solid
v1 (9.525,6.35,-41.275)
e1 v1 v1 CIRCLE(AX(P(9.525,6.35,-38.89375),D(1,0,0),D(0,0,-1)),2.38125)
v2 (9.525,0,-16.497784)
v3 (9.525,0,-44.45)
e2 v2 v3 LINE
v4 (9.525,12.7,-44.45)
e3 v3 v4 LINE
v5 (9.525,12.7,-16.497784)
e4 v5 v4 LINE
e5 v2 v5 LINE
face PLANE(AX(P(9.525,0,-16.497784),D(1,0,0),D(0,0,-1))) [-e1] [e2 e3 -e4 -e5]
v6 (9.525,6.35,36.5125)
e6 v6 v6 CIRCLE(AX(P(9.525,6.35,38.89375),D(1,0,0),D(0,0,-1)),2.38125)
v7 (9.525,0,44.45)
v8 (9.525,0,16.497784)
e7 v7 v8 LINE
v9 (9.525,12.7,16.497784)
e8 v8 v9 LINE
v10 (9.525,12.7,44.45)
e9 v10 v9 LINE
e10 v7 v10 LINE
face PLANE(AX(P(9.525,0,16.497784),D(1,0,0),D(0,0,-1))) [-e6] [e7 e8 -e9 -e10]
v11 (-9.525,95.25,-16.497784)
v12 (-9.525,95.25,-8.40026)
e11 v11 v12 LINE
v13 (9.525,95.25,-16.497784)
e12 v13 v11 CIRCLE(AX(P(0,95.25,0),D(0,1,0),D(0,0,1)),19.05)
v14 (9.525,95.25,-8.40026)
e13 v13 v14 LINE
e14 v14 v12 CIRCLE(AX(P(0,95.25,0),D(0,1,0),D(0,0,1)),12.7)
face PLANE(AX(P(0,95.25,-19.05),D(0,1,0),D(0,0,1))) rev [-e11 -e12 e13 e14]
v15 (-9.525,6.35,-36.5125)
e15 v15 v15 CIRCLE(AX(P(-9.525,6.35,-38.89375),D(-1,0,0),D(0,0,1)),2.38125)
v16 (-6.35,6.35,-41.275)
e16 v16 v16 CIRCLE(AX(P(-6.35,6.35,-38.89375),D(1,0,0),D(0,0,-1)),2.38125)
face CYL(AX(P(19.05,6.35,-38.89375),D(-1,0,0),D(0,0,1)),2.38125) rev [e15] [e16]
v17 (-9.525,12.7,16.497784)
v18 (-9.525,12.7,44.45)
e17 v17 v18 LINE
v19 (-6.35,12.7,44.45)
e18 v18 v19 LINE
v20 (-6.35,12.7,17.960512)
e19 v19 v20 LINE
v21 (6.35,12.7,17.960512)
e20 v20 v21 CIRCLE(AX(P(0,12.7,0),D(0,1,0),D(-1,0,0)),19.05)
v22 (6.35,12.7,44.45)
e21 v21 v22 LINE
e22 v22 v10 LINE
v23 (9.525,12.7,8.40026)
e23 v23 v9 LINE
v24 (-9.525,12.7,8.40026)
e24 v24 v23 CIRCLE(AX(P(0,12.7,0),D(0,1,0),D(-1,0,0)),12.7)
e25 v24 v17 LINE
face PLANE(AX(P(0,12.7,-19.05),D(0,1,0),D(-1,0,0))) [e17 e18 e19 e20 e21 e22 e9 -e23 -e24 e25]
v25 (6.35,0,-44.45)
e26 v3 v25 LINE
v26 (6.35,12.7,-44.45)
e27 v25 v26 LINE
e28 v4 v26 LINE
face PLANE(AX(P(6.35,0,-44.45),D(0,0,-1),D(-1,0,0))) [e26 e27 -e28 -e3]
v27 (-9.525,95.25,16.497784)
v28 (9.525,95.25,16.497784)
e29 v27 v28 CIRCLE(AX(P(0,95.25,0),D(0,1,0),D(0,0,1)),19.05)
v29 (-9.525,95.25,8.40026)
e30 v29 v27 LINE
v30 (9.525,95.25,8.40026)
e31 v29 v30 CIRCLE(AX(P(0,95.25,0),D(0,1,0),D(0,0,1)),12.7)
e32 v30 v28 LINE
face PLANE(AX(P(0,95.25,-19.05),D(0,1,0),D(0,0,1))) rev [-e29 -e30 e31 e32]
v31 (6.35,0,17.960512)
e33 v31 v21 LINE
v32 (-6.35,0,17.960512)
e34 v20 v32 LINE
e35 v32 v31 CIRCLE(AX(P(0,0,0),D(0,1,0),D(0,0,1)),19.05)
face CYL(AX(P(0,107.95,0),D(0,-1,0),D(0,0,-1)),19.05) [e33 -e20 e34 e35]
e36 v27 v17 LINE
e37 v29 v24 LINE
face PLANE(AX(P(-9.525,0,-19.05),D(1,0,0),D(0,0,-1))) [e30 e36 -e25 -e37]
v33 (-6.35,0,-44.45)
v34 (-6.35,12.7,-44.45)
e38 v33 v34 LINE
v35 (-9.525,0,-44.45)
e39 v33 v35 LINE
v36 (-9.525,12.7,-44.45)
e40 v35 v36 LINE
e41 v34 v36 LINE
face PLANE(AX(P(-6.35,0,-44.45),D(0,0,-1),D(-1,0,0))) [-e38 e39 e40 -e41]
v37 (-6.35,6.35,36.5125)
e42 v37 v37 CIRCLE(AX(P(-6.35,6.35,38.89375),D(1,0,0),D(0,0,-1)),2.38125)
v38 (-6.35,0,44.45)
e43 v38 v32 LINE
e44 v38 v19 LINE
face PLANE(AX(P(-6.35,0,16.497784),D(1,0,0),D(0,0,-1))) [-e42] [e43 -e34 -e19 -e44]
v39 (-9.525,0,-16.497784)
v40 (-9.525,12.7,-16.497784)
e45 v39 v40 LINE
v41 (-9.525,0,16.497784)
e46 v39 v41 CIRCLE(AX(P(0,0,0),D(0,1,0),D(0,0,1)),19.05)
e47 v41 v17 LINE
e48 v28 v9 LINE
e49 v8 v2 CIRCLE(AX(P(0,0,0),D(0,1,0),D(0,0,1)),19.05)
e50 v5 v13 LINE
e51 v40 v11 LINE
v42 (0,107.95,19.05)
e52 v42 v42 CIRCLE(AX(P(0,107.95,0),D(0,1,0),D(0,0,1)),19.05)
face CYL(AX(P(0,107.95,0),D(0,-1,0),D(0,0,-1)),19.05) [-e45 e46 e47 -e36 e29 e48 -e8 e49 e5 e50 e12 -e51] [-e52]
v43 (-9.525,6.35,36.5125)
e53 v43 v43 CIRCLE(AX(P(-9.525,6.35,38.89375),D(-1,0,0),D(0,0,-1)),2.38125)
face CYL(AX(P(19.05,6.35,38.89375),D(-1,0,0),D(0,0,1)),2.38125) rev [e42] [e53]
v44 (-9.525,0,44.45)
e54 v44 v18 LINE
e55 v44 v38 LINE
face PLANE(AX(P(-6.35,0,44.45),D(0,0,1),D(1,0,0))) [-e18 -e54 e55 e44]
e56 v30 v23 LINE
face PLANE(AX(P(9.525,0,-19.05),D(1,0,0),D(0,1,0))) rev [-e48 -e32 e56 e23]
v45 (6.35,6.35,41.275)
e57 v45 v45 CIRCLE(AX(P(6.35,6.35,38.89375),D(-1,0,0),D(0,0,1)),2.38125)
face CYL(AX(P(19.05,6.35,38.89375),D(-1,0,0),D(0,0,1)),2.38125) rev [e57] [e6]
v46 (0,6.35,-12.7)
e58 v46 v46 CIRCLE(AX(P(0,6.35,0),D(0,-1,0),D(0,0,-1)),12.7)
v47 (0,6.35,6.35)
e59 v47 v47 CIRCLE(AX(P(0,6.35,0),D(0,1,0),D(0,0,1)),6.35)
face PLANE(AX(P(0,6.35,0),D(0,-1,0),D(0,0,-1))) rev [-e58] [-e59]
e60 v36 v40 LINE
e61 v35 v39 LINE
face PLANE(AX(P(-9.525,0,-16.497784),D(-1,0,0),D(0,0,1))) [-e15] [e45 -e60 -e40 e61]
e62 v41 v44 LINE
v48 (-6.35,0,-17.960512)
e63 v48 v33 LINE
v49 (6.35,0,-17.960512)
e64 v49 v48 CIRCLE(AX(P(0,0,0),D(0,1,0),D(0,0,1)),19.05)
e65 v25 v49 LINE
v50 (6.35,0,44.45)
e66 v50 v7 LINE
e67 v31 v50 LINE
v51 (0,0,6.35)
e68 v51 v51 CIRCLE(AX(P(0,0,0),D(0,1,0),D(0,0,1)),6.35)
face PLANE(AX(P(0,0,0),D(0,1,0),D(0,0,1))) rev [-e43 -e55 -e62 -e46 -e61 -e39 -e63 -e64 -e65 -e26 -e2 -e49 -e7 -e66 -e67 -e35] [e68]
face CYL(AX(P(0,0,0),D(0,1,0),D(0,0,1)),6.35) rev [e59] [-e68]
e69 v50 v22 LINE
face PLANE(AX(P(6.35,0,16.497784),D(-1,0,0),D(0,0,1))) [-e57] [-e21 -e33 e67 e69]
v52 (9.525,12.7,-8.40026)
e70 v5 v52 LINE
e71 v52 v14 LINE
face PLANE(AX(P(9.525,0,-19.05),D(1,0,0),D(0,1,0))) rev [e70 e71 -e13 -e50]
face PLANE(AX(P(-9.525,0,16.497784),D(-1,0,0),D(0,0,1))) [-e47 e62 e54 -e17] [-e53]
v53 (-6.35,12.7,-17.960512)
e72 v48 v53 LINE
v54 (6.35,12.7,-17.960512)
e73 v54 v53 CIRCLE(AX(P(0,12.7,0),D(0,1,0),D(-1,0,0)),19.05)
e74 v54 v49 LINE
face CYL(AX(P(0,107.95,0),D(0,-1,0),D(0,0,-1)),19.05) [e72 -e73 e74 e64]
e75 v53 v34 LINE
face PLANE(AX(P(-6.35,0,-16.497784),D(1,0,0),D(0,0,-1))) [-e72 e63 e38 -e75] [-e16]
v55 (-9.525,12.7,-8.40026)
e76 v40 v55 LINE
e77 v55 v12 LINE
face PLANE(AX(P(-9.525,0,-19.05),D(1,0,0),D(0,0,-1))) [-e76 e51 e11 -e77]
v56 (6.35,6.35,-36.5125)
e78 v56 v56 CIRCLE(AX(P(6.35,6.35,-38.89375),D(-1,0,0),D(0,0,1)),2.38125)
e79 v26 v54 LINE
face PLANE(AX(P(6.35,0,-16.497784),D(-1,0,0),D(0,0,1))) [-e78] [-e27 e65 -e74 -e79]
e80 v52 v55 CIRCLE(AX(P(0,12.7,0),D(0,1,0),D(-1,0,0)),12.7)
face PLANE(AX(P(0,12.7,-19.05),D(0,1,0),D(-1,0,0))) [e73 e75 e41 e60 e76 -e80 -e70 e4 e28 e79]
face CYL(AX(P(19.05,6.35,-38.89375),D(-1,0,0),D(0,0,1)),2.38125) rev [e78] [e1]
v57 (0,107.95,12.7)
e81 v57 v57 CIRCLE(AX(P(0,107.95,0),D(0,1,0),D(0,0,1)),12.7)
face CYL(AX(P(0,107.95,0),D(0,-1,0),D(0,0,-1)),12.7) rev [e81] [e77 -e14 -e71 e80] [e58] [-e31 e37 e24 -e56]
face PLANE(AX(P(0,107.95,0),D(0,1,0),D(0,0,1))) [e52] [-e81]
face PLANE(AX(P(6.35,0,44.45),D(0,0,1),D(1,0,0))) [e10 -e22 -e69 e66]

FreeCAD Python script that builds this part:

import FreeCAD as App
import Part
import Sketcher
Q = App.Units.Quantity


def add_polygon(sketch, points):
    """Adds a closed chain of lines whose ends are joined by coincident constraints."""
    first, n = sketch.GeometryCount, len(points)
    for a, b in zip(points, points[1:] + points[:1]):
        sketch.addGeometry(Part.LineSegment(App.Vector(*a, 0), App.Vector(*b, 0)), False)
    for i in range(n):
        sketch.addConstraint(Sketcher.Constraint("Coincident", first + i, 2, first + (i + 1) % n, 1))

doc = App.newDocument("Part")
params = doc.addObject("Spreadsheet::Sheet", "Params")
for row, (alias, value) in enumerate([
    ("sketch1_diameter", "1 in"),
    ("sketch1_diameter2", "1.5 in"),
    ("pad1_length", "4.25 in"),
    ("sketch2_diameter", "1.1 in"),
    ("pad2_length", "0.25 in"),
    ("sketch3_width", "0.75 in"),
    ("sketch3_height", "3.25 in"),
    ("sketch4_diameter", "0.5 in"),
    ("sketch5_width", "0.125 in"),
    ("pad3_length", "0.25 in"),
    ("pad3_length2", "0.25 in"),
    ("sketch6_diameter", "0.1875 in"),
], start=1):
    params.set(f"A{row}", alias)
    params.set(f"B{row}", "=" + value)
    params.setAlias(f"B{row}", alias)

body = doc.addObject("PartDesign::Body", "Body")

# Sketch on XZ plane
sketch1 = doc.addObject("Sketcher::SketchObject", "Sketch")
body.addObject(sketch1)
sketch1.AttachmentSupport = (doc.XZ_Plane, [""])
sketch1.MapMode = "FlatFace"
sketch1.addGeometry(Part.Circle(App.Vector(0, 0, 0), App.Vector(0, 0, 1), 19), False)
sketch1.addGeometry(Part.Circle(App.Vector(0, 0, 0), App.Vector(0, 0, 1), 13), False)
sketch1.addConstraint(Sketcher.Constraint("Coincident", 0, 3, -1, 1))
sketch1.addConstraint(Sketcher.Constraint("Coincident", 1, 3, -1, 1))
sketch1.addConstraint(Sketcher.Constraint("Diameter", 1, Q("1 in")))
sketch1.addConstraint(Sketcher.Constraint("Diameter", 0, Q("1.5 in")))
sketch1.setExpression("Constraints[2]", "Params.sketch1_diameter")
sketch1.setExpression("Constraints[3]", "Params.sketch1_diameter2")
pad1 = doc.addObject("PartDesign::Pad", "Pad")
body.addObject(pad1)
pad1.Profile = sketch1
pad1.setExpression("Length", "Params.pad1_length")
pad1.Reversed = True

# Sketch on XZ plane
sketch2 = doc.addObject("Sketcher::SketchObject", "Sketch001")
body.addObject(sketch2)
sketch2.AttachmentSupport = (doc.XZ_Plane, [""])
sketch2.MapMode = "FlatFace"
sketch2.addGeometry(Part.Circle(App.Vector(0, 0, 0), App.Vector(0, 0, 1), 14), False)
sketch2.addConstraint(Sketcher.Constraint("Coincident", 0, 3, -1, 1))
sketch2.addConstraint(Sketcher.Constraint("Diameter", 0, Q("1.1 in")))
sketch2.setExpression("Constraints[1]", "Params.sketch2_diameter")
pad2 = doc.addObject("PartDesign::Pad", "Pad001")
body.addObject(pad2)
pad2.Profile = sketch2
pad2.setExpression("Length", "Params.pad2_length")
pad2.Reversed = True

# Sketch on XY plane
sketch3 = doc.addObject("Sketcher::SketchObject", "Sketch002")
body.addObject(sketch3)
sketch3.AttachmentSupport = (doc.XY_Plane, [""])
sketch3.MapMode = "FlatFace"
add_polygon(sketch3, [(-10, 95), (-10, 13), (10, 13), (10, 95)])  # lines 0-3
sketch3.addConstraint(Sketcher.Constraint("Vertical", 0))
sketch3.addConstraint(Sketcher.Constraint("Horizontal", 1))
sketch3.addConstraint(Sketcher.Constraint("Vertical", 2))
sketch3.addConstraint(Sketcher.Constraint("Horizontal", 3))
sketch3.addConstraint(Sketcher.Constraint("DistanceX", 1, 1, 1, 2, Q("0.75 in")))
sketch3.addConstraint(Sketcher.Constraint("DistanceY", 0, 2, 0, 1, Q("3.25 in")))
sketch3.addConstraint(Sketcher.Constraint("DistanceY", -1, 1, 0, 2, Q("0.5 in")))
sketch3.addConstraint(Sketcher.Constraint("DistanceX", 0, 2, -1, 1, Q("0.375 in")))
sketch3.setExpression("Constraints[8]", "Params.sketch3_width")
sketch3.setExpression("Constraints[9]", "Params.sketch3_height")
pocket1 = doc.addObject("PartDesign::Pocket", "Pocket")
body.addObject(pocket1)
pocket1.Profile = sketch3
pocket1.Type = "ThroughAll"
pocket1.Midplane = True

# Sketch on XZ plane
sketch4 = doc.addObject("Sketcher::SketchObject", "Sketch003")
body.addObject(sketch4)
sketch4.AttachmentSupport = (doc.XZ_Plane, [""])
sketch4.MapMode = "FlatFace"
sketch4.AttachmentOffset = App.Placement(App.Vector(0, 0, -0.25 * 25.4), App.Rotation())
sketch4.addGeometry(Part.Circle(App.Vector(0, 0, 0), App.Vector(0, 0, 1), 6), False)
sketch4.addConstraint(Sketcher.Constraint("Coincident", 0, 3, -1, 1))
sketch4.addConstraint(Sketcher.Constraint("Diameter", 0, Q("0.5 in")))
sketch4.setExpression("Constraints[1]", "Params.sketch4_diameter")
pocket2 = doc.addObject("PartDesign::Pocket", "Pocket001")
body.addObject(pocket2)
pocket2.Profile = sketch4
pocket2.Type = "ThroughAll"
pocket2.Reversed = True

# Sketch on XZ plane
sketch5 = doc.addObject("Sketcher::SketchObject", "Sketch004")
body.addObject(sketch5)
sketch5.AttachmentSupport = (doc.XZ_Plane, [""])
sketch5.MapMode = "FlatFace"
sketch5.AttachmentOffset = App.Placement(App.Vector(0, 0, -0.25 * 25.4), App.Rotation())
add_polygon(sketch5, [(-9.5, 16.5), (-9.5, 44.5), (-6.3, 44.5), (-6.3, 16.5)])  # lines 0-3
add_polygon(sketch5, [(6.3, 16.5), (6.3, 44.5), (9.5, 44.5), (9.5, 16.5)])  # lines 4-7
add_polygon(sketch5, [(6.3, -44.5), (6.3, -16.5), (9.5, -16.5), (9.5, -44.5)])  # lines 8-11
add_polygon(sketch5, [(-9.5, -44.5), (-9.5, -16.5), (-6.3, -16.5), (-6.3, -44.5)])  # lines 12-15
sketch5.addConstraint(Sketcher.Constraint("Vertical", 0))
sketch5.addConstraint(Sketcher.Constraint("Horizontal", 1))
sketch5.addConstraint(Sketcher.Constraint("Vertical", 2))
sketch5.addConstraint(Sketcher.Constraint("Horizontal", 3))
sketch5.addConstraint(Sketcher.Constraint("Vertical", 4))
sketch5.addConstraint(Sketcher.Constraint("Horizontal", 5))
sketch5.addConstraint(Sketcher.Constraint("Vertical", 6))
sketch5.addConstraint(Sketcher.Constraint("Horizontal", 7))
sketch5.addConstraint(Sketcher.Constraint("Vertical", 8))
sketch5.addConstraint(Sketcher.Constraint("Horizontal", 9))
sketch5.addConstraint(Sketcher.Constraint("Vertical", 10))
sketch5.addConstraint(Sketcher.Constraint("Horizontal", 11))
sketch5.addConstraint(Sketcher.Constraint("Vertical", 12))
sketch5.addConstraint(Sketcher.Constraint("Horizontal", 13))
sketch5.addConstraint(Sketcher.Constraint("Vertical", 14))
sketch5.addConstraint(Sketcher.Constraint("Horizontal", 15))
sketch5.addConstraint(Sketcher.Constraint("Symmetric", 2, 2, 8, 2, -1, 1))
sketch5.addConstraint(Sketcher.Constraint("Symmetric", 0, 2, 10, 2, -1, 1))
sketch5.addConstraint(Sketcher.Constraint("Symmetric", 6, 2, 12, 2, -1, 1))
sketch5.addConstraint(Sketcher.Constraint("Symmetric", 4, 2, 14, 2, -1, 1))
sketch5.addConstraint(Sketcher.Constraint("Symmetric", 1, 2, 4, 2, -2))
sketch5.addConstraint(Sketcher.Constraint("Symmetric", 3, 2, 6, 2, -2))
sketch5.addConstraint(Sketcher.Constraint("DistanceX", 1, 2, 4, 2, Q("0.5 in")))
sketch5.addConstraint(Sketcher.Constraint("DistanceX", 1, 1, 1, 2, Q("0.125 in")))
sketch5.addConstraint(Sketcher.Constraint("DistanceY", -1, 1, 0, 2, Q("1.75 in")))
sketch5.addConstraint(Sketcher.Constraint("DistanceY", 0, 1, 0, 2, Q("27.952216 mm")))
sketch5.setExpression("Constraints[39]", "Params.sketch5_width")
pad3 = doc.addObject("PartDesign::Pad", "Pad002")
body.addObject(pad3)
pad3.Profile = sketch5
pad3.Type = "TwoLengths"
pad3.setExpression("Length", "Params.pad3_length")
pad3.setExpression("Length2", "Params.pad3_length2")
pad3.Reversed = True

# Sketch on YZ plane
sketch6 = doc.addObject("Sketcher::SketchObject", "Sketch005")
body.addObject(sketch6)
sketch6.AttachmentSupport = (doc.YZ_Plane, [""])
sketch6.MapMode = "FlatFace"
sketch6.AttachmentOffset = App.Placement(App.Vector(0, 0, -0.375 * 25.4), App.Rotation())
sketch6.addGeometry(Part.Circle(App.Vector(6.3, -38.9, 0), App.Vector(0, 0, 1), 2.4), False)
sketch6.addGeometry(Part.Circle(App.Vector(6.3, 38.9, 0), App.Vector(0, 0, 1), 2.4), False)
sketch6.addConstraint(Sketcher.Constraint("Equal", 0, 1))
sketch6.addConstraint(Sketcher.Constraint("Symmetric", 0, 3, 1, 3, -1))
sketch6.addConstraint(Sketcher.Constraint("Diameter", 0, Q("0.1875 in")))
sketch6.addConstraint(Sketcher.Constraint("DistanceX", -1, 1, 0, 3, Q("0.25 in")))
sketch6.addConstraint(Sketcher.Constraint("DistanceY", 0, 3, -1, 1, Q("1.53125 in")))
sketch6.setExpression("Constraints[2]", "Params.sketch6_diameter")
pocket3 = doc.addObject("PartDesign::Pocket", "Pocket002")
body.addObject(pocket3)
pocket3.Profile = sketch6
pocket3.Type = "ThroughAll"
pocket3.Reversed = True

doc.recompute()
